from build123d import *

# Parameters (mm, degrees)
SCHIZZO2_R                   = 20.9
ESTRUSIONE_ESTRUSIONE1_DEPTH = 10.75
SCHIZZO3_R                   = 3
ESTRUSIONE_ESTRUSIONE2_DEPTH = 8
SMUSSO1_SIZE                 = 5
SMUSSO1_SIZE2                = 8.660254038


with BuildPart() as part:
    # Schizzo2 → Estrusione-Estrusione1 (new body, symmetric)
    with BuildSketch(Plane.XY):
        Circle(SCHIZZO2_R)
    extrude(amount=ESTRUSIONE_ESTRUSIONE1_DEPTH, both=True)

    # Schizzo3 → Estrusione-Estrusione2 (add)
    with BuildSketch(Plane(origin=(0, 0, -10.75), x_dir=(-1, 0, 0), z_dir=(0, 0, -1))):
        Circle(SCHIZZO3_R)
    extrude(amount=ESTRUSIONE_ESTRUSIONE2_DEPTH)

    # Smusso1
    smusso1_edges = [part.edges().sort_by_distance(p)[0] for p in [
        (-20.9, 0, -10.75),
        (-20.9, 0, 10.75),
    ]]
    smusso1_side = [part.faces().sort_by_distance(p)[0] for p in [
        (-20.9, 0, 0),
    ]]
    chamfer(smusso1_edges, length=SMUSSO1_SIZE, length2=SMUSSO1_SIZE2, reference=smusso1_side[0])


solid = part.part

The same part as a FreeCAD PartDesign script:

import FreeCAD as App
import Part
import Sketcher
from FreeCAD import Vector


def edges_at(feature, points):
    """Names of the edges that pass closest to the given points."""
    edges = feature.Shape.Edges
    near = lambda p: min(range(len(edges)), key=lambda i: edges[i].distToShape(Part.Vertex(*p))[0])
    return sorted({f"Edge{near(p) + 1}" for p in points})

doc = App.newDocument("Part")
body = doc.addObject("PartDesign::Body", "Body")

# Sketch on XY plane
sketch1 = body.newObject("Sketcher::SketchObject", "Sketch")
sketch1.AttachmentSupport = (doc.getObject("XY_Plane"), [""])
sketch1.MapMode = "FlatFace"
sketch1.addGeometry(Part.Circle(Vector(0, 0, 0), Vector(0, 0, 1), 20.9), False)
sketch1.addConstraint([
    Sketcher.Constraint("Coincident", 0, 3, -1, 1),
    Sketcher.Constraint("Diameter", 0, 41.8),
])
pad1 = body.newObject("PartDesign::Pad", "Pad")
pad1.Profile = sketch1
pad1.Length = 21.5
pad1.Midplane = True

# Sketch on XY plane
sketch2 = body.newObject("Sketcher::SketchObject", "Sketch001")
sketch2.AttachmentSupport = (doc.getObject("XY_Plane"), [""])
sketch2.MapMode = "FlatFace"
sketch2.AttachmentOffset = App.Placement(Vector(0, 0, -10.75), App.Rotation())
sketch2.addGeometry(Part.Circle(Vector(0, 0, 0), Vector(0, 0, 1), 3), False)
sketch2.addConstraint([
    Sketcher.Constraint("Coincident", 0, 3, -1, 1),
    Sketcher.Constraint("Diameter", 0, 6.0),
])
pad2 = body.newObject("PartDesign::Pad", "Pad001")
pad2.Profile = sketch2
pad2.Length = 8
pad2.Reversed = True
doc.recompute()

chamfer = body.newObject("PartDesign::Chamfer", "Chamfer")
chamfer.Base = (pad2, edges_at(pad2, [(-20.9, 0, -10.75), (-20.9, 0, 10.75)]))
chamfer.ChamferType = "Two distances"
chamfer.Size = 5
chamfer.Size2 = 8.660254

doc.recompute()
